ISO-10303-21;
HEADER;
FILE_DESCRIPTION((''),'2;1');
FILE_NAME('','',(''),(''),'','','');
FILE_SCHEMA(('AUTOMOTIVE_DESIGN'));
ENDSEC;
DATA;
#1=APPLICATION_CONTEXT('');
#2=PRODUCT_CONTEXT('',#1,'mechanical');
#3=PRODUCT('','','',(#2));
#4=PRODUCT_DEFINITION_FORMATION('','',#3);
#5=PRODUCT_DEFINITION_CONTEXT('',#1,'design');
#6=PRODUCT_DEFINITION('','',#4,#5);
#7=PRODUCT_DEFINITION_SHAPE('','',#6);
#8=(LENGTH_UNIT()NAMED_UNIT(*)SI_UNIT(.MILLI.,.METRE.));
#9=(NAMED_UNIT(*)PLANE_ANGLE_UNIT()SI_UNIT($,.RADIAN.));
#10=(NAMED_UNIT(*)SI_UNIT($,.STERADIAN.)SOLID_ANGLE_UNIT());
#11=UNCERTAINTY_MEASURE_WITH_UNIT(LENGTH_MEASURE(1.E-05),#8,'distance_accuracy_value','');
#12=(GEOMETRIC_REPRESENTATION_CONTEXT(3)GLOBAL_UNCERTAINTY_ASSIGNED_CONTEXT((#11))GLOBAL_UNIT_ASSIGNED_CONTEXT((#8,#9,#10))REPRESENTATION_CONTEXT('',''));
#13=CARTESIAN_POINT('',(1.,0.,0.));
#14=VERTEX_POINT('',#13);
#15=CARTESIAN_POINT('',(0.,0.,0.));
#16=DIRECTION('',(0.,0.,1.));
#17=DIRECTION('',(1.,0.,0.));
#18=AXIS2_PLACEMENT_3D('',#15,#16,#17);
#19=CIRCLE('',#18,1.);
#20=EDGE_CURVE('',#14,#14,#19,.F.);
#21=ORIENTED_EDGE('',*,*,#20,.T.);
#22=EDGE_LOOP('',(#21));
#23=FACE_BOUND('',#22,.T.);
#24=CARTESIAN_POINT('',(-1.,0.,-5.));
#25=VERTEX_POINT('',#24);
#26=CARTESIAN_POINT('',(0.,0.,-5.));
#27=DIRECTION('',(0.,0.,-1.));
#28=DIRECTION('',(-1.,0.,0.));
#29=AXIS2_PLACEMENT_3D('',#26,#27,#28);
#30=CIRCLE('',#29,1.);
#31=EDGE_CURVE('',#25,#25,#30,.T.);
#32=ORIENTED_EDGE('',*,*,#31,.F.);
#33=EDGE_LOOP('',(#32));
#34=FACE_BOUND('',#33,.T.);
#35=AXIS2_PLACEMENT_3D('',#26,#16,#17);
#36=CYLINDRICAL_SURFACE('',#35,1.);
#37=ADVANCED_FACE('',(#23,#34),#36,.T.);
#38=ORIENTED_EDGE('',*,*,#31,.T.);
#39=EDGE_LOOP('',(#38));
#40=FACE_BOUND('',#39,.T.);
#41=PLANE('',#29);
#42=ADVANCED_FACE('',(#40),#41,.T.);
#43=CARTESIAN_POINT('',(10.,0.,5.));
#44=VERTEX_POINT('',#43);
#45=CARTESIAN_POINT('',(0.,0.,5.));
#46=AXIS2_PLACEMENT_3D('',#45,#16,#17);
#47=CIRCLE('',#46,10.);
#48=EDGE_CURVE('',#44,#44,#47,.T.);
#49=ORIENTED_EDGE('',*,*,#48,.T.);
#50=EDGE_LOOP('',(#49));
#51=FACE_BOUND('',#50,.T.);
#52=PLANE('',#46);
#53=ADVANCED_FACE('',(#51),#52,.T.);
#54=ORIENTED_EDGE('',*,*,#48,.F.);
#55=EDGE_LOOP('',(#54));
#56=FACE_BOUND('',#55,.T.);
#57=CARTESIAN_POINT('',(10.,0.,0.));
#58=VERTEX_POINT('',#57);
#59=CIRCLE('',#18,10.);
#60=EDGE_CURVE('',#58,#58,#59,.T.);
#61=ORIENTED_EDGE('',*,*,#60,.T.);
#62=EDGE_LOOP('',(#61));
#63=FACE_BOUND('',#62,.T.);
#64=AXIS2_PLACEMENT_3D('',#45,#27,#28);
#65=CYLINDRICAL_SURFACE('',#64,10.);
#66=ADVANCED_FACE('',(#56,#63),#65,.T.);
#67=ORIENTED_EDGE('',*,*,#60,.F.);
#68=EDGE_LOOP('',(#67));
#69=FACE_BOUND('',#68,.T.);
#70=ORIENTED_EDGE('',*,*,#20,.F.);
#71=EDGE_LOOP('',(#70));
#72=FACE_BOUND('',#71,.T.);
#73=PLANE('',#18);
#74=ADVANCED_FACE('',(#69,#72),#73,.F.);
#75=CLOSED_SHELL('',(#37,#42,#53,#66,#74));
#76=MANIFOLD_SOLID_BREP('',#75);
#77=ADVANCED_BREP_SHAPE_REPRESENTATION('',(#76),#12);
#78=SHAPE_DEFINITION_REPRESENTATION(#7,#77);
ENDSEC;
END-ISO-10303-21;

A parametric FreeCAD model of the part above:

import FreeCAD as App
import Part
import Sketcher

V = App.Vector
Q = App.Units.Quantity

doc = App.newDocument("Part")
body = doc.addObject("PartDesign::Body", "Body")

sketch1 = body.newObject("Sketcher::SketchObject", "Sketch")
sketch1.AttachmentSupport = (doc.getObject("XY_Plane"), [""])
sketch1.MapMode = "FlatFace"
sketch1.addGeometry(Part.Circle(V(0, 0, 0), V(0, 0, 1), 10), False)
sketch1.addConstraint(Sketcher.Constraint("Coincident", 0, 3, -1, 1))
sketch1.addConstraint(Sketcher.Constraint("Diameter", 0, Q("20 mm")))
pad1 = body.newObject("PartDesign::Pad", "Pad")
pad1.Profile = sketch1
pad1.Length = 5

sketch2 = body.newObject("Sketcher::SketchObject", "Sketch001")
sketch2.AttachmentSupport = (doc.getObject("XY_Plane"), [""])
sketch2.MapMode = "FlatFace"
sketch2.addGeometry(Part.Circle(V(0, 0, 0), V(0, 0, 1), 1), False)
sketch2.addConstraint(Sketcher.Constraint("Coincident", 0, 3, -1, 1))
sketch2.addConstraint(Sketcher.Constraint("Diameter", 0, Q("2 mm")))
pad2 = body.newObject("PartDesign::Pad", "Pad001")
pad2.Profile = sketch2
pad2.Length = 5
pad2.Reversed = True

doc.recompute()
